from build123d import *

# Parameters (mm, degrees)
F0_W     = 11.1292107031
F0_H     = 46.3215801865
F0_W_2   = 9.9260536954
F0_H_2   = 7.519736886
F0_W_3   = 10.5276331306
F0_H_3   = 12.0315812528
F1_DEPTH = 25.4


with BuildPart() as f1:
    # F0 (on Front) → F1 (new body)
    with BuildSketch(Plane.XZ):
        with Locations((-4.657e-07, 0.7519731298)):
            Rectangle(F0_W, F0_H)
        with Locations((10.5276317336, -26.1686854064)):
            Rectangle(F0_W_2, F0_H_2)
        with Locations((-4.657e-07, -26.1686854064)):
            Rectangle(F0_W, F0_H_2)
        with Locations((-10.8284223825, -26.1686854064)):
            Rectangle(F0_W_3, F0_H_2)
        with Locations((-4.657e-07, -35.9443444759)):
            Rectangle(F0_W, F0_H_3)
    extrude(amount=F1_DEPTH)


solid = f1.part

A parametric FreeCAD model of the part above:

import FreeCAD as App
import Part
import Sketcher
from FreeCAD import Vector
Q = App.Units.Quantity


def add_polygon(sketch, points):
    """Adds a closed chain of lines whose ends are joined by coincident constraints."""
    first, n = sketch.GeometryCount, len(points)
    for a, b in zip(points, points[1:] + points[:1]):
        sketch.addGeometry(Part.LineSegment(App.Vector(*a, 0), App.Vector(*b, 0)), False)
    for i in range(n):
        sketch.addConstraint(Sketcher.Constraint("Coincident", first + i, 2, first + (i + 1) % n, 1))

doc = App.newDocument("Part")
body = doc.addObject("PartDesign::Body", "Body")

# Sketch on XZ plane
sketch1 = body.newObject("Sketcher::SketchObject", "Sketch")
sketch1.AttachmentSupport = (doc.getObject("XZ_Plane"), [""])
sketch1.MapMode = "FlatFace"
add_polygon(sketch1, [(-6, 24), (-6, -22), (-16, -22), (-16, -30), (-6, -30), (-6, -42), (6, -42), (6, -30), (15, -30), (15, -22), (6, -22), (6, 24)])  # lines 0-11
sketch1.addConstraint([
    Sketcher.Constraint("Vertical", 0),
    Sketcher.Constraint("Horizontal", 1),
    Sketcher.Constraint("Vertical", 2),
    Sketcher.Constraint("Horizontal", 3),
    Sketcher.Constraint("Vertical", 4),
    Sketcher.Constraint("Horizontal", 5),
    Sketcher.Constraint("Vertical", 6),
    Sketcher.Constraint("Horizontal", 7),
    Sketcher.Constraint("Vertical", 8),
    Sketcher.Constraint("Horizontal", 9),
    Sketcher.Constraint("Vertical", 10),
    Sketcher.Constraint("Horizontal", 11),
    Sketcher.Constraint("Symmetric", 3, 2, 6, 2, -2),
    Sketcher.Constraint("Symmetric", 0, 2, 9, 2, -2),
    Sketcher.Constraint("Vertical", 0, 2, 3, 2),
    Sketcher.Constraint("DistanceX", 5, 1, 5, 2, 11.129211),
    Sketcher.Constraint("DistanceY", 0, 2, 0, 1, 46.32158),
    Sketcher.Constraint("DistanceY", 4, 2, 4, 1, 12.031581),
    Sketcher.Constraint("DistanceX", 1, 2, 1, 1, 10.527633),
    Sketcher.Constraint("DistanceX", 7, 1, 7, 2, 9.926054),
    Sketcher.Constraint("DistanceY", 2, 2, 2, 1, 7.519737),
    Sketcher.Constraint("DistanceY", 0, 2, -1, 1, 22.408817),
])
pad1 = body.newObject("PartDesign::Pad", "Pad")
pad1.Profile = sketch1
pad1.Length = Q("1 in")

doc.recompute()
